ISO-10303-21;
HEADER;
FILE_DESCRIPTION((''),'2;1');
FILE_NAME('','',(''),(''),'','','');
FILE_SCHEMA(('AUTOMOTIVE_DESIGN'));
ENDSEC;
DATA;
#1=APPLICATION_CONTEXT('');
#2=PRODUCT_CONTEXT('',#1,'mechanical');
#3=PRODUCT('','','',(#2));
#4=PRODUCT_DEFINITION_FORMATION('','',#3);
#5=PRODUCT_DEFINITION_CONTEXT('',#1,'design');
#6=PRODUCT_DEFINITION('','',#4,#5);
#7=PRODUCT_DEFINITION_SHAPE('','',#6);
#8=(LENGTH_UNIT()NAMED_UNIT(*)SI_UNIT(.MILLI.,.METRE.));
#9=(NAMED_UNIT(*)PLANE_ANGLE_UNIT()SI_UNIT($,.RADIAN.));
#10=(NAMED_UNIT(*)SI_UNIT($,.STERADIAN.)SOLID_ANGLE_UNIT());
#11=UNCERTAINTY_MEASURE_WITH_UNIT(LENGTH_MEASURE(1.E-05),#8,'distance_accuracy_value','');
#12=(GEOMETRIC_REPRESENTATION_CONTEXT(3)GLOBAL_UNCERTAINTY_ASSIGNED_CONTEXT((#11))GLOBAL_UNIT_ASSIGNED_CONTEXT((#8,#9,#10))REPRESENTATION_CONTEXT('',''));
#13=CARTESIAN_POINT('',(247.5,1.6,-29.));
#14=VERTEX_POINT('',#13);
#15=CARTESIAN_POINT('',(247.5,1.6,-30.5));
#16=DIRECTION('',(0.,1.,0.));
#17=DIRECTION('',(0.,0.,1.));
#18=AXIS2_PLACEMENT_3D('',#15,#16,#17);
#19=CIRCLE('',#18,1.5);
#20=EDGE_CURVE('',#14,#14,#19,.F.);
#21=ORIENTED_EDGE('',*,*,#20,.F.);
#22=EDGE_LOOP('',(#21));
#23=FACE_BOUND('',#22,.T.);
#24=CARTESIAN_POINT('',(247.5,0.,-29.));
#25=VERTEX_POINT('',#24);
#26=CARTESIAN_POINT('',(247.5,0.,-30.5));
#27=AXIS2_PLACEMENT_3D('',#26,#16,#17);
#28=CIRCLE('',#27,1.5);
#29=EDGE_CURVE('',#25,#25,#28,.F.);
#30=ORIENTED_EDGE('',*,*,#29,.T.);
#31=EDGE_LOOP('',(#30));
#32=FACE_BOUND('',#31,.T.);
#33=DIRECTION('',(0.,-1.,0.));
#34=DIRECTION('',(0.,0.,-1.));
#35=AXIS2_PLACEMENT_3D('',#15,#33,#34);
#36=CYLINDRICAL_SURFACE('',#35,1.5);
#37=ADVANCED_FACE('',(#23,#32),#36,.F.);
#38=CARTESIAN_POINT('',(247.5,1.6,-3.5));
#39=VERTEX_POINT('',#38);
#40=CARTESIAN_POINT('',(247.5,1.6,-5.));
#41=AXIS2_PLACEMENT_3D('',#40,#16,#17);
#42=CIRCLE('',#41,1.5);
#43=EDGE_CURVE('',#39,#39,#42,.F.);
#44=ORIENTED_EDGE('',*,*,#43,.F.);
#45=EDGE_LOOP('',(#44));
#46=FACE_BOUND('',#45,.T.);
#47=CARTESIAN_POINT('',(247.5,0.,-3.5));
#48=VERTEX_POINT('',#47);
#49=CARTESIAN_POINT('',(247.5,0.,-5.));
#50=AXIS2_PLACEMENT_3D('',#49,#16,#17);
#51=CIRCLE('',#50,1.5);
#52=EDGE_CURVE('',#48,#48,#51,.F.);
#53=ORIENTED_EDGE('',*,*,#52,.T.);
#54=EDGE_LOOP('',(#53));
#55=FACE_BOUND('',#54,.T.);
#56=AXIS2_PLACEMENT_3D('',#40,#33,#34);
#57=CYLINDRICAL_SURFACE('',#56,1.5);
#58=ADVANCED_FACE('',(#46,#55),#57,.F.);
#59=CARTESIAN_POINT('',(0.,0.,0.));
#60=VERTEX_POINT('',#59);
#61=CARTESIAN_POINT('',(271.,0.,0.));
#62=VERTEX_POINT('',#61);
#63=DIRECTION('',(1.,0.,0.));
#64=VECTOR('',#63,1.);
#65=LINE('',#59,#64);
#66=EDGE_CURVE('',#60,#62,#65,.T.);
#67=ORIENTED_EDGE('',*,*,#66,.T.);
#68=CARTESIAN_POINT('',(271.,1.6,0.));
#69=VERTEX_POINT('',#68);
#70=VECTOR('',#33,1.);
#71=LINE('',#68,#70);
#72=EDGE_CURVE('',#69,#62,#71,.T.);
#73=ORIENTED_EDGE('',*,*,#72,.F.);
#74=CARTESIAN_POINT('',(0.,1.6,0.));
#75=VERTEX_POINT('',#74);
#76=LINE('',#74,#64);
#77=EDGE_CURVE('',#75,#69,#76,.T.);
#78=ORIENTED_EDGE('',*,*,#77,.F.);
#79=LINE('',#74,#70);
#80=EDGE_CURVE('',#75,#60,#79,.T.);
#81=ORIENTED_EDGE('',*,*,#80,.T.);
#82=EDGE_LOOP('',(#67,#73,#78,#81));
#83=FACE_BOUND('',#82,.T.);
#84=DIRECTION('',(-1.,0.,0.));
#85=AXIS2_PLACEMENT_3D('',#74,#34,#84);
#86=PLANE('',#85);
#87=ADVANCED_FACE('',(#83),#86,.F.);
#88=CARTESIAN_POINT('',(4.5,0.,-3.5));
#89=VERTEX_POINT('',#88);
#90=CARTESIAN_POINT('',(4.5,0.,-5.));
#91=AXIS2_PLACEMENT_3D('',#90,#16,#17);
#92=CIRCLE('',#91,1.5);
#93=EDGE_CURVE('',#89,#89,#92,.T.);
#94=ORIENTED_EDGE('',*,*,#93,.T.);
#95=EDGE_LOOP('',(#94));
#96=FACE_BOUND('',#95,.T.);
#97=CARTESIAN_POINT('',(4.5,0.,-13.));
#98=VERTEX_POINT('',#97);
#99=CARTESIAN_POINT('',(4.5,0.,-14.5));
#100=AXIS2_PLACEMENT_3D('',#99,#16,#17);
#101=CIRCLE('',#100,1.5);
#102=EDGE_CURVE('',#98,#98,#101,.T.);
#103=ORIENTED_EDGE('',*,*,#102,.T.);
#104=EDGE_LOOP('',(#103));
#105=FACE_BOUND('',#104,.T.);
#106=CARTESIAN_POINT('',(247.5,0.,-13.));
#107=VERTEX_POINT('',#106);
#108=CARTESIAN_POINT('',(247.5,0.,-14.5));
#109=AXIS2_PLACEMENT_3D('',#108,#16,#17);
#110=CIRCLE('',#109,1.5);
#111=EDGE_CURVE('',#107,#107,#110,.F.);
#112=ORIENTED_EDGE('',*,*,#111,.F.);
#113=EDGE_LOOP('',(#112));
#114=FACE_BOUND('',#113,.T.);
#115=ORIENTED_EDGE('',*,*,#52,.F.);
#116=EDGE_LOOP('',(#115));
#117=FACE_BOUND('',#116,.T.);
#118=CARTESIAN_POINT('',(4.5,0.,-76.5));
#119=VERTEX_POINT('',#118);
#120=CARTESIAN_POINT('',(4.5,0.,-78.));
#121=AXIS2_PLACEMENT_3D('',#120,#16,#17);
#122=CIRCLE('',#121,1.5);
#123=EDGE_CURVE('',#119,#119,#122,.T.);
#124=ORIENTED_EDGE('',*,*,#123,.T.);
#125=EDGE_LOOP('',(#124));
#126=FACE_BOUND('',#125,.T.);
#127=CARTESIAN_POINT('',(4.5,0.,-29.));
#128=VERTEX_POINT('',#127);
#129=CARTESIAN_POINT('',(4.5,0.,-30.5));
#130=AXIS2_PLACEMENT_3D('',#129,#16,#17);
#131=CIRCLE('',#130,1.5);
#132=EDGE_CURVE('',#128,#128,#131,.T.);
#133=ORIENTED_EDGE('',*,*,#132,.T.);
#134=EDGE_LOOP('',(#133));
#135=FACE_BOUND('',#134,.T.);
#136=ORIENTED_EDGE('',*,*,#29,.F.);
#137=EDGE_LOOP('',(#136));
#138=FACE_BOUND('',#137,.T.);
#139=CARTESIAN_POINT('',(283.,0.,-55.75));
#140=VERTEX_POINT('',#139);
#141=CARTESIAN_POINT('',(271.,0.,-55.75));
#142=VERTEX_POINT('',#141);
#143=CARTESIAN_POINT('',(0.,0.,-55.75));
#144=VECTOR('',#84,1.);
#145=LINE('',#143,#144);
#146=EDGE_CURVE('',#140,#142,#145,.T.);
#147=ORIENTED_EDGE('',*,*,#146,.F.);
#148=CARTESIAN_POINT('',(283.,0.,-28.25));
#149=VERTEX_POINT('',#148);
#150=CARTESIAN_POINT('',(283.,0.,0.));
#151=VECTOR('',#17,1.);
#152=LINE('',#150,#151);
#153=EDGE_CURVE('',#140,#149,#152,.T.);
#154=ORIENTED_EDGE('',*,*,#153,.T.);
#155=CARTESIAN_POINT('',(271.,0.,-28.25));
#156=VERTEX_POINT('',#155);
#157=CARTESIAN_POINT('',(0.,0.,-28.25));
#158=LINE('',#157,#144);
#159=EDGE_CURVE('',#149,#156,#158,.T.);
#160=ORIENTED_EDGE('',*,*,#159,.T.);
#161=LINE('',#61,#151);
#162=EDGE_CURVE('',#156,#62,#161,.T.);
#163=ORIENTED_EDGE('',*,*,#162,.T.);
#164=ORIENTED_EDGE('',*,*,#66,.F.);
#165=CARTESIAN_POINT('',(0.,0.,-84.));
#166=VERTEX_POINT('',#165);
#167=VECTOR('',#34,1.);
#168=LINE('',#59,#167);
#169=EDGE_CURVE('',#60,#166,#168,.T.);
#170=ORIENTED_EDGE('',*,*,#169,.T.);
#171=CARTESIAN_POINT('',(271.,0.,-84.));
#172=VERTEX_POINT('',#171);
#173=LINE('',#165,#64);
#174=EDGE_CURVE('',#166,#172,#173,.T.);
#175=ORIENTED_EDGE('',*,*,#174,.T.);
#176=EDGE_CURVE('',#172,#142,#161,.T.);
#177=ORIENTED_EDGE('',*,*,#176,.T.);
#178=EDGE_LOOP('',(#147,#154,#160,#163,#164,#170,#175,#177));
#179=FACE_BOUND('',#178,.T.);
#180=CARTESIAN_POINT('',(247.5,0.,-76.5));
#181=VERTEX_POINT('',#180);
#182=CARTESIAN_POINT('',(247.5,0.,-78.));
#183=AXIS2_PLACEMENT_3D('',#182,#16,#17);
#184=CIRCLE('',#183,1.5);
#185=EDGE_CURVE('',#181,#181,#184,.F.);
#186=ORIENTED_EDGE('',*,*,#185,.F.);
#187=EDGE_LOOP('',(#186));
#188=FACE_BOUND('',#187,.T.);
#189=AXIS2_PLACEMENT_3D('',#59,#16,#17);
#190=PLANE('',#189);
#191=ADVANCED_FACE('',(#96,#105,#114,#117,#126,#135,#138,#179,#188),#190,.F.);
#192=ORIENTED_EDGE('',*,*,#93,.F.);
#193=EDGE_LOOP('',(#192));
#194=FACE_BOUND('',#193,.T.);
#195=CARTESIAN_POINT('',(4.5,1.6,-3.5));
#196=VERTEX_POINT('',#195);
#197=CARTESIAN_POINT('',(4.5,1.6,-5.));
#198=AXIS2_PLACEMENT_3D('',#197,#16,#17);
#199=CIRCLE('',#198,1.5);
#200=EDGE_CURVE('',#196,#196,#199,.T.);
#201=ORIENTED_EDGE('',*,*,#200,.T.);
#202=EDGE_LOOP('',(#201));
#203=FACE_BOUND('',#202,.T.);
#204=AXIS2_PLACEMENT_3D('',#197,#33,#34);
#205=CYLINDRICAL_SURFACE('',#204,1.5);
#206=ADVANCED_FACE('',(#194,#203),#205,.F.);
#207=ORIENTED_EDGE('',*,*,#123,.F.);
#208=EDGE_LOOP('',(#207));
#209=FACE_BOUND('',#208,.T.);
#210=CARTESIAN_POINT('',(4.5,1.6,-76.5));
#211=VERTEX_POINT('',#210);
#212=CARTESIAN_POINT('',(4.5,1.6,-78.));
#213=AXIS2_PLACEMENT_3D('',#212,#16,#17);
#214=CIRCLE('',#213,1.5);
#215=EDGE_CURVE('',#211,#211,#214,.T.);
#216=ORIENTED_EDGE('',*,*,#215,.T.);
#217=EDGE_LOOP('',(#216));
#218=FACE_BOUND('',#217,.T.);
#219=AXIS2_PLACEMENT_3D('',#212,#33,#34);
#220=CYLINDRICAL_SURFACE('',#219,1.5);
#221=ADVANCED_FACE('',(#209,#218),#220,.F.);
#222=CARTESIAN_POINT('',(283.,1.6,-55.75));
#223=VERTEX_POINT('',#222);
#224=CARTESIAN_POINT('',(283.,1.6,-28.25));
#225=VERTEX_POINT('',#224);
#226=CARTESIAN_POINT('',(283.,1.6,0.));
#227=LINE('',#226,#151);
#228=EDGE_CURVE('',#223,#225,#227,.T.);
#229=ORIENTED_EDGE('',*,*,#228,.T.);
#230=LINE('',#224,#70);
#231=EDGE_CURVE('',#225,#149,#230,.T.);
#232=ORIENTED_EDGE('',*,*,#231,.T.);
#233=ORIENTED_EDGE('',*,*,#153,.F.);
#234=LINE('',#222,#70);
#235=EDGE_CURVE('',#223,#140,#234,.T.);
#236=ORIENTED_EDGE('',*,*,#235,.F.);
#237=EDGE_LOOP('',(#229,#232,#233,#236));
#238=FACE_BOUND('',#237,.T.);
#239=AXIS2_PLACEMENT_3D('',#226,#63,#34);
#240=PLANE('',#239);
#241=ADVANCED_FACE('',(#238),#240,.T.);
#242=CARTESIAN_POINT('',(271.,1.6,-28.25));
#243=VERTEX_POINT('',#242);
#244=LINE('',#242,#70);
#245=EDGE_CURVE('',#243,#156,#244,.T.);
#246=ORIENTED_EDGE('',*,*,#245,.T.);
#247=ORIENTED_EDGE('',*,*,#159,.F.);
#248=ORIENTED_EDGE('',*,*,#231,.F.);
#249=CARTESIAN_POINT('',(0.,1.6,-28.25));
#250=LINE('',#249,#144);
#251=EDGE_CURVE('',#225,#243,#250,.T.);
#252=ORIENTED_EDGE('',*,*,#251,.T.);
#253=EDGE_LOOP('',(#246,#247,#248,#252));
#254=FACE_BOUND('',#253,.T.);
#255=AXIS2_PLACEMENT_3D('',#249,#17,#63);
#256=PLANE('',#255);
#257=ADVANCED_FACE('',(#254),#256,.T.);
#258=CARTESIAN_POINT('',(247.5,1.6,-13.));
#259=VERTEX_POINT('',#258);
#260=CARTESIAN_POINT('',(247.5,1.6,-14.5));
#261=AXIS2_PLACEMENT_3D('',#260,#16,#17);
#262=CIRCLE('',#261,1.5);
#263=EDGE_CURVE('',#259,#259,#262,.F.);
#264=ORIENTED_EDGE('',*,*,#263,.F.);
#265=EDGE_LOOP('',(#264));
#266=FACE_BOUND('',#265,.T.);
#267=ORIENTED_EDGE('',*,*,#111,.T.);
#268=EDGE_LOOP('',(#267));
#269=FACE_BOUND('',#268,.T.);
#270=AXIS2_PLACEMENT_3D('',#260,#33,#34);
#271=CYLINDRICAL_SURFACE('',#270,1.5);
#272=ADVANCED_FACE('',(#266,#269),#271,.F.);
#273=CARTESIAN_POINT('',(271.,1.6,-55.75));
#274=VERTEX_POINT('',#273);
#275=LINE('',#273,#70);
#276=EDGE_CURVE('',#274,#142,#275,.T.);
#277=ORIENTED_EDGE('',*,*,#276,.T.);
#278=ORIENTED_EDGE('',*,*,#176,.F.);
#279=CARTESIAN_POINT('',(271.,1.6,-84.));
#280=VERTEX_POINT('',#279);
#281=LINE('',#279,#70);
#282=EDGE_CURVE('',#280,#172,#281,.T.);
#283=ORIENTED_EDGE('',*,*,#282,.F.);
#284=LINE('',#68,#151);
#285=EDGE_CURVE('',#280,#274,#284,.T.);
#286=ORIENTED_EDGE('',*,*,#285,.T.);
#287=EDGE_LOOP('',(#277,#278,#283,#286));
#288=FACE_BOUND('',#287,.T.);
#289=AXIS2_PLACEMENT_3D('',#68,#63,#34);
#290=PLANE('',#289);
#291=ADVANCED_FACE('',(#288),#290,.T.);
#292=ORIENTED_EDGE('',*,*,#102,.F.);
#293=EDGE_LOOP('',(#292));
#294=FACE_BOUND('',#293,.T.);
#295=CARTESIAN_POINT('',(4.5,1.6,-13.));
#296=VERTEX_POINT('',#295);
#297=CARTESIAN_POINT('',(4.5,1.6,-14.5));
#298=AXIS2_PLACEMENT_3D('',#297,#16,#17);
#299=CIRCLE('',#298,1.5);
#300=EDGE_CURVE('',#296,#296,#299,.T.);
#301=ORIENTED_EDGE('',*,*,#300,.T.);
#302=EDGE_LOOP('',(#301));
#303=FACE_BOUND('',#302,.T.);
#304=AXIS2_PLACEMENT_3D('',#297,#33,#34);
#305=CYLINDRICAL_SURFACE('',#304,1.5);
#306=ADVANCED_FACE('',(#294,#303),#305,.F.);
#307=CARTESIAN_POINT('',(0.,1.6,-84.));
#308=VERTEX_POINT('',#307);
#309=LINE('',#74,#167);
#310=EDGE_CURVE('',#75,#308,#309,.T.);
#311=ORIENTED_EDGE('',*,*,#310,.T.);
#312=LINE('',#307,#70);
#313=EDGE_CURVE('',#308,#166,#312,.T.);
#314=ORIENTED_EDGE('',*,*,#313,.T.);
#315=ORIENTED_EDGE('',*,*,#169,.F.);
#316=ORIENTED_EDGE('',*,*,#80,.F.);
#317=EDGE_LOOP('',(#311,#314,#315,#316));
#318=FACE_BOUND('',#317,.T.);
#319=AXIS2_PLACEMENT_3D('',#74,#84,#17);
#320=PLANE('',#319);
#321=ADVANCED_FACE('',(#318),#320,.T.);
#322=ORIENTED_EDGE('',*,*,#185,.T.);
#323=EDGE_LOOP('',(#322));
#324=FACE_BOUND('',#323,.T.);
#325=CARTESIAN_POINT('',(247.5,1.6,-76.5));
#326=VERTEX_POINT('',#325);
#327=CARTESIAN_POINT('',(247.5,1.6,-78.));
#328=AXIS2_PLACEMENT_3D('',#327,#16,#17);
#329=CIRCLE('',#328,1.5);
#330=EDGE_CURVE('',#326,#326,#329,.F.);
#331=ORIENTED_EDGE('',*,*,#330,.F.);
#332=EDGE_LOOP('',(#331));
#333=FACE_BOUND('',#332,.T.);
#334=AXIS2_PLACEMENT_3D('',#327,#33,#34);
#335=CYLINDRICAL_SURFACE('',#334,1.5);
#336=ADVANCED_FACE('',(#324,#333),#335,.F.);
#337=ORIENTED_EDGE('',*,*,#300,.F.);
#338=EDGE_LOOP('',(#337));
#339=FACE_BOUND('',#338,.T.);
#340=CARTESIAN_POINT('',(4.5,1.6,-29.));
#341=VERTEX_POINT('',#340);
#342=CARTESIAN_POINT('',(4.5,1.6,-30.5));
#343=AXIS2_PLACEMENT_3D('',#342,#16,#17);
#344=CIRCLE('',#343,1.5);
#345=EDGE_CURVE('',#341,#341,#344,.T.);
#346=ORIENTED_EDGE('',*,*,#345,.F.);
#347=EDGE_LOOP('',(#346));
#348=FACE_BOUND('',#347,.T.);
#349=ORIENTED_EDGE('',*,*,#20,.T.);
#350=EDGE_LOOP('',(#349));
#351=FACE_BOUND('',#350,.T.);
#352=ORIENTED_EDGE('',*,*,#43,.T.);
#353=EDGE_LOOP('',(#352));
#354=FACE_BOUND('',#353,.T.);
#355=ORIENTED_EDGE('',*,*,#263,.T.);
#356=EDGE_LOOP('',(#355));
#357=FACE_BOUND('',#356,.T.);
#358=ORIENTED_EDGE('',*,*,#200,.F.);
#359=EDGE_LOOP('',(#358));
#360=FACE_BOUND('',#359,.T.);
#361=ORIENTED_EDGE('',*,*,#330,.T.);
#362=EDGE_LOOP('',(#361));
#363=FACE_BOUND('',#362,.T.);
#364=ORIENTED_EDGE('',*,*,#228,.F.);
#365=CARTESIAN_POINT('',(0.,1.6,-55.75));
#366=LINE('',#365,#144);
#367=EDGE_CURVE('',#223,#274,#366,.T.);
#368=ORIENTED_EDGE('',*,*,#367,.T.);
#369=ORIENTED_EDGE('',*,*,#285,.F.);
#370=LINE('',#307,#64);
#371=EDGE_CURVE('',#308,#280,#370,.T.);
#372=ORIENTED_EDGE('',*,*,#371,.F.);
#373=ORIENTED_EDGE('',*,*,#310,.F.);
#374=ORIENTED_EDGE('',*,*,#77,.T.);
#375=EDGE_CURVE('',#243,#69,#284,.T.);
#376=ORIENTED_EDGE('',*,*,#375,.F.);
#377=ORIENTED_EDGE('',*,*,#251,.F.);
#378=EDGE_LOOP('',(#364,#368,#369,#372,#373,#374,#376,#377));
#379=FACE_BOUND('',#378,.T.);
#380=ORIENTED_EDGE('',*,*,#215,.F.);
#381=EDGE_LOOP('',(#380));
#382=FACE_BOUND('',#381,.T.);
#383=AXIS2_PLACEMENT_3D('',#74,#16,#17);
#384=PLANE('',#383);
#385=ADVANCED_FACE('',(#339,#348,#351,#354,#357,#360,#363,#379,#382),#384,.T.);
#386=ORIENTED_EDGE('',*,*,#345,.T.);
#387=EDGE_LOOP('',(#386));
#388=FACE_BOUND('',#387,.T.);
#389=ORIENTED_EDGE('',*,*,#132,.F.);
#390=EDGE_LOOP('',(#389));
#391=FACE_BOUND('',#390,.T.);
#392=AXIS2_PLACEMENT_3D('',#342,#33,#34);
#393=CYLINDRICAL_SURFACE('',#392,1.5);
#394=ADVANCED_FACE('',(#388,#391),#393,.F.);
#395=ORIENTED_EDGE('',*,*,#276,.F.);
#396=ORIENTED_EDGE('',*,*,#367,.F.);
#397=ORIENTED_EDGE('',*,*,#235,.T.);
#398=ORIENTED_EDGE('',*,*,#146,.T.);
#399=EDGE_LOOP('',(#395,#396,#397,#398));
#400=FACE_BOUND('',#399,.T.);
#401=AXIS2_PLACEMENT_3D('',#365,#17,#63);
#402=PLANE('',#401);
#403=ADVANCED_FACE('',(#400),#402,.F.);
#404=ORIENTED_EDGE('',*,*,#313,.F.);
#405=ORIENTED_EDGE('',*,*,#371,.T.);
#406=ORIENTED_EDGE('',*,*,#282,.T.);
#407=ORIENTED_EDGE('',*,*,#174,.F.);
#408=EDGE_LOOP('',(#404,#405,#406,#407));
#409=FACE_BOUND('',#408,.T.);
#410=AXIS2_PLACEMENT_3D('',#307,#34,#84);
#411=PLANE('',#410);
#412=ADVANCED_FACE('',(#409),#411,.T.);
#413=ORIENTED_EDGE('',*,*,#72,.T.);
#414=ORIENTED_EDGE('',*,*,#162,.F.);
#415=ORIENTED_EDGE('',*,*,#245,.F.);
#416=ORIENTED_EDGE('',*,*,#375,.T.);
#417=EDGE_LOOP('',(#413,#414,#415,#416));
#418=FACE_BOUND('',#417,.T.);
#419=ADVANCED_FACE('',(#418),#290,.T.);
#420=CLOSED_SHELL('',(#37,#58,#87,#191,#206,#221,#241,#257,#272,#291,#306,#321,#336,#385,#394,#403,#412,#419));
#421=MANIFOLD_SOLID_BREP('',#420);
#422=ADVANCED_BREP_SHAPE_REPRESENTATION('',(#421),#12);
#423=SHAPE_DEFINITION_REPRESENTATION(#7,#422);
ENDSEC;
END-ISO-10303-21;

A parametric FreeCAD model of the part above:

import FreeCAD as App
import Part
import Sketcher
from FreeCAD import Vector
Q = App.Units.Quantity

doc = App.newDocument("Part")
params = doc.addObject("Spreadsheet::Sheet", "Params")
for row, (alias, value) in enumerate([
    ("sketch1_diameter", "3 mm"),
    ("sketch1_width", "12 mm"),
    ("sketch1_width2", "271 mm"),
    ("sketch1_height", "84 mm"),
    ("sketch1_height2", "27.5 mm"),
    ("pad1_length", "1.6 mm"),
], start=1):
    params.set(f"A{row}", alias)
    params.set(f"B{row}", "=" + value)
    params.setAlias(f"B{row}", alias)

body = doc.addObject("PartDesign::Body", "Body")

# Sketch on XZ plane
sketch1 = body.newObject("Sketcher::SketchObject", "Sketch")
sketch1.AttachmentSupport = (doc.getObject("XZ_Plane"), [""])
sketch1.MapMode = "FlatFace"
sketch1.addGeometry(Part.LineSegment(Vector(271, 0, 0), Vector(271, -28.2, 0)), False)
sketch1.addGeometry(Part.LineSegment(Vector(271, -28.2, 0), Vector(283, -28.2, 0)), False)
sketch1.addGeometry(Part.LineSegment(Vector(283, -28.2, 0), Vector(283, -55.8, 0)), False)
sketch1.addGeometry(Part.LineSegment(Vector(283, -55.8, 0), Vector(271, -55.8, 0)), False)
sketch1.addGeometry(Part.LineSegment(Vector(271, -55.8, 0), Vector(271, -84, 0)), False)
sketch1.addGeometry(Part.LineSegment(Vector(271, -84, 0), Vector(0, -84, 0)), False)
sketch1.addGeometry(Part.LineSegment(Vector(0, -84, 0), Vector(0, 0, 0)), False)
sketch1.addGeometry(Part.LineSegment(Vector(0, 0, 0), Vector(271, 0, 0)), False)
sketch1.addGeometry(Part.Circle(Vector(4.5, -5, 0), Vector(0, 0, 1), 1.5), False)
sketch1.addGeometry(Part.Circle(Vector(4.5, -14.5, 0), Vector(0, 0, 1), 1.5), False)
sketch1.addGeometry(Part.Circle(Vector(4.5, -30.5, 0), Vector(0, 0, 1), 1.5), False)
sketch1.addGeometry(Part.Circle(Vector(247.5, -5, 0), Vector(0, 0, 1), 1.5), False)
sketch1.addGeometry(Part.Circle(Vector(247.5, -14.5, 0), Vector(0, 0, 1), 1.5), False)
sketch1.addGeometry(Part.Circle(Vector(247.5, -30.5, 0), Vector(0, 0, 1), 1.5), False)
sketch1.addGeometry(Part.Circle(Vector(4.5, -78, 0), Vector(0, 0, 1), 1.5), False)
sketch1.addGeometry(Part.Circle(Vector(247.5, -78, 0), Vector(0, 0, 1), 1.5), False)
sketch1.addConstraint(Sketcher.Constraint("Coincident", 0, 2, 1, 1))
sketch1.addConstraint(Sketcher.Constraint("Coincident", 1, 2, 2, 1))
sketch1.addConstraint(Sketcher.Constraint("Coincident", 2, 2, 3, 1))
sketch1.addConstraint(Sketcher.Constraint("Coincident", 3, 2, 4, 1))
sketch1.addConstraint(Sketcher.Constraint("Coincident", 4, 2, 5, 1))
sketch1.addConstraint(Sketcher.Constraint("Coincident", 5, 2, 6, 1))
sketch1.addConstraint(Sketcher.Constraint("Coincident", 6, 2, 7, 1))
sketch1.addConstraint(Sketcher.Constraint("Coincident", 7, 2, 0, 1))
sketch1.addConstraint(Sketcher.Constraint("Vertical", 0))
sketch1.addConstraint(Sketcher.Constraint("Horizontal", 1))
sketch1.addConstraint(Sketcher.Constraint("Vertical", 2))
sketch1.addConstraint(Sketcher.Constraint("Horizontal", 3))
sketch1.addConstraint(Sketcher.Constraint("Vertical", 4))
sketch1.addConstraint(Sketcher.Constraint("Horizontal", 5))
sketch1.addConstraint(Sketcher.Constraint("Vertical", 6))
sketch1.addConstraint(Sketcher.Constraint("Horizontal", 7))
sketch1.addConstraint(Sketcher.Constraint("Coincident", 6, 2, -1, 1))
sketch1.addConstraint(Sketcher.Constraint("Equal", 8, 9))
sketch1.addConstraint(Sketcher.Constraint("Equal", 9, 10))
sketch1.addConstraint(Sketcher.Constraint("Equal", 10, 11))
sketch1.addConstraint(Sketcher.Constraint("Equal", 11, 12))
sketch1.addConstraint(Sketcher.Constraint("Equal", 12, 13))
sketch1.addConstraint(Sketcher.Constraint("Equal", 13, 14))
sketch1.addConstraint(Sketcher.Constraint("Equal", 14, 15))
sketch1.addConstraint(Sketcher.Constraint("Horizontal", 8, 3, 11, 3))
sketch1.addConstraint(Sketcher.Constraint("Horizontal", 9, 3, 12, 3))
sketch1.addConstraint(Sketcher.Constraint("Horizontal", 10, 3, 13, 3))
sketch1.addConstraint(Sketcher.Constraint("Horizontal", 14, 3, 15, 3))
sketch1.addConstraint(Sketcher.Constraint("Vertical", 8, 3, 9, 3))
sketch1.addConstraint(Sketcher.Constraint("Vertical", 9, 3, 10, 3))
sketch1.addConstraint(Sketcher.Constraint("Vertical", 11, 3, 12, 3))
sketch1.addConstraint(Sketcher.Constraint("Vertical", 12, 3, 13, 3))
sketch1.addConstraint(Sketcher.Constraint("Vertical", 10, 3, 14, 3))
sketch1.addConstraint(Sketcher.Constraint("Vertical", 13, 3, 15, 3))
sketch1.addConstraint(Sketcher.Constraint("Vertical", 0, 2, 3, 2))
sketch1.addConstraint(Sketcher.Constraint("Equal", 0, 4))
sketch1.addConstraint(Sketcher.Constraint("Diameter", 8, Q("3 mm")))
sketch1.addConstraint(Sketcher.Constraint("DistanceX", 1, 1, 1, 2, Q("12 mm")))
sketch1.addConstraint(Sketcher.Constraint("DistanceX", 5, 2, 5, 1, Q("271 mm")))
sketch1.addConstraint(Sketcher.Constraint("DistanceY", 6, 1, 6, 2, Q("84 mm")))
sketch1.addConstraint(Sketcher.Constraint("DistanceY", 2, 2, 2, 1, Q("27.5 mm")))
sketch1.addConstraint(Sketcher.Constraint("DistanceY", 8, 3, -1, 1, Q("5 mm")))
sketch1.addConstraint(Sketcher.Constraint("DistanceY", 14, 3, -1, 1, Q("78 mm")))
sketch1.addConstraint(Sketcher.Constraint("DistanceY", 10, 3, 9, 3, Q("16 mm")))
sketch1.addConstraint(Sketcher.Constraint("DistanceX", 8, 3, 11, 3, Q("243 mm")))
sketch1.addConstraint(Sketcher.Constraint("DistanceX", -1, 1, 8, 3, Q("4.5 mm")))
sketch1.addConstraint(Sketcher.Constraint("DistanceY", 9, 3, -1, 1, Q("14.5 mm")))
sketch1.setExpression("Constraints[36]", "Params.sketch1_diameter")
sketch1.setExpression("Constraints[37]", "Params.sketch1_width")
sketch1.setExpression("Constraints[38]", "Params.sketch1_width2")
sketch1.setExpression("Constraints[39]", "Params.sketch1_height")
sketch1.setExpression("Constraints[40]", "Params.sketch1_height2")
pad1 = body.newObject("PartDesign::Pad", "Pad")
pad1.Profile = sketch1
pad1.setExpression("Length", "Params.pad1_length")
pad1.Reversed = True

doc.recompute()
